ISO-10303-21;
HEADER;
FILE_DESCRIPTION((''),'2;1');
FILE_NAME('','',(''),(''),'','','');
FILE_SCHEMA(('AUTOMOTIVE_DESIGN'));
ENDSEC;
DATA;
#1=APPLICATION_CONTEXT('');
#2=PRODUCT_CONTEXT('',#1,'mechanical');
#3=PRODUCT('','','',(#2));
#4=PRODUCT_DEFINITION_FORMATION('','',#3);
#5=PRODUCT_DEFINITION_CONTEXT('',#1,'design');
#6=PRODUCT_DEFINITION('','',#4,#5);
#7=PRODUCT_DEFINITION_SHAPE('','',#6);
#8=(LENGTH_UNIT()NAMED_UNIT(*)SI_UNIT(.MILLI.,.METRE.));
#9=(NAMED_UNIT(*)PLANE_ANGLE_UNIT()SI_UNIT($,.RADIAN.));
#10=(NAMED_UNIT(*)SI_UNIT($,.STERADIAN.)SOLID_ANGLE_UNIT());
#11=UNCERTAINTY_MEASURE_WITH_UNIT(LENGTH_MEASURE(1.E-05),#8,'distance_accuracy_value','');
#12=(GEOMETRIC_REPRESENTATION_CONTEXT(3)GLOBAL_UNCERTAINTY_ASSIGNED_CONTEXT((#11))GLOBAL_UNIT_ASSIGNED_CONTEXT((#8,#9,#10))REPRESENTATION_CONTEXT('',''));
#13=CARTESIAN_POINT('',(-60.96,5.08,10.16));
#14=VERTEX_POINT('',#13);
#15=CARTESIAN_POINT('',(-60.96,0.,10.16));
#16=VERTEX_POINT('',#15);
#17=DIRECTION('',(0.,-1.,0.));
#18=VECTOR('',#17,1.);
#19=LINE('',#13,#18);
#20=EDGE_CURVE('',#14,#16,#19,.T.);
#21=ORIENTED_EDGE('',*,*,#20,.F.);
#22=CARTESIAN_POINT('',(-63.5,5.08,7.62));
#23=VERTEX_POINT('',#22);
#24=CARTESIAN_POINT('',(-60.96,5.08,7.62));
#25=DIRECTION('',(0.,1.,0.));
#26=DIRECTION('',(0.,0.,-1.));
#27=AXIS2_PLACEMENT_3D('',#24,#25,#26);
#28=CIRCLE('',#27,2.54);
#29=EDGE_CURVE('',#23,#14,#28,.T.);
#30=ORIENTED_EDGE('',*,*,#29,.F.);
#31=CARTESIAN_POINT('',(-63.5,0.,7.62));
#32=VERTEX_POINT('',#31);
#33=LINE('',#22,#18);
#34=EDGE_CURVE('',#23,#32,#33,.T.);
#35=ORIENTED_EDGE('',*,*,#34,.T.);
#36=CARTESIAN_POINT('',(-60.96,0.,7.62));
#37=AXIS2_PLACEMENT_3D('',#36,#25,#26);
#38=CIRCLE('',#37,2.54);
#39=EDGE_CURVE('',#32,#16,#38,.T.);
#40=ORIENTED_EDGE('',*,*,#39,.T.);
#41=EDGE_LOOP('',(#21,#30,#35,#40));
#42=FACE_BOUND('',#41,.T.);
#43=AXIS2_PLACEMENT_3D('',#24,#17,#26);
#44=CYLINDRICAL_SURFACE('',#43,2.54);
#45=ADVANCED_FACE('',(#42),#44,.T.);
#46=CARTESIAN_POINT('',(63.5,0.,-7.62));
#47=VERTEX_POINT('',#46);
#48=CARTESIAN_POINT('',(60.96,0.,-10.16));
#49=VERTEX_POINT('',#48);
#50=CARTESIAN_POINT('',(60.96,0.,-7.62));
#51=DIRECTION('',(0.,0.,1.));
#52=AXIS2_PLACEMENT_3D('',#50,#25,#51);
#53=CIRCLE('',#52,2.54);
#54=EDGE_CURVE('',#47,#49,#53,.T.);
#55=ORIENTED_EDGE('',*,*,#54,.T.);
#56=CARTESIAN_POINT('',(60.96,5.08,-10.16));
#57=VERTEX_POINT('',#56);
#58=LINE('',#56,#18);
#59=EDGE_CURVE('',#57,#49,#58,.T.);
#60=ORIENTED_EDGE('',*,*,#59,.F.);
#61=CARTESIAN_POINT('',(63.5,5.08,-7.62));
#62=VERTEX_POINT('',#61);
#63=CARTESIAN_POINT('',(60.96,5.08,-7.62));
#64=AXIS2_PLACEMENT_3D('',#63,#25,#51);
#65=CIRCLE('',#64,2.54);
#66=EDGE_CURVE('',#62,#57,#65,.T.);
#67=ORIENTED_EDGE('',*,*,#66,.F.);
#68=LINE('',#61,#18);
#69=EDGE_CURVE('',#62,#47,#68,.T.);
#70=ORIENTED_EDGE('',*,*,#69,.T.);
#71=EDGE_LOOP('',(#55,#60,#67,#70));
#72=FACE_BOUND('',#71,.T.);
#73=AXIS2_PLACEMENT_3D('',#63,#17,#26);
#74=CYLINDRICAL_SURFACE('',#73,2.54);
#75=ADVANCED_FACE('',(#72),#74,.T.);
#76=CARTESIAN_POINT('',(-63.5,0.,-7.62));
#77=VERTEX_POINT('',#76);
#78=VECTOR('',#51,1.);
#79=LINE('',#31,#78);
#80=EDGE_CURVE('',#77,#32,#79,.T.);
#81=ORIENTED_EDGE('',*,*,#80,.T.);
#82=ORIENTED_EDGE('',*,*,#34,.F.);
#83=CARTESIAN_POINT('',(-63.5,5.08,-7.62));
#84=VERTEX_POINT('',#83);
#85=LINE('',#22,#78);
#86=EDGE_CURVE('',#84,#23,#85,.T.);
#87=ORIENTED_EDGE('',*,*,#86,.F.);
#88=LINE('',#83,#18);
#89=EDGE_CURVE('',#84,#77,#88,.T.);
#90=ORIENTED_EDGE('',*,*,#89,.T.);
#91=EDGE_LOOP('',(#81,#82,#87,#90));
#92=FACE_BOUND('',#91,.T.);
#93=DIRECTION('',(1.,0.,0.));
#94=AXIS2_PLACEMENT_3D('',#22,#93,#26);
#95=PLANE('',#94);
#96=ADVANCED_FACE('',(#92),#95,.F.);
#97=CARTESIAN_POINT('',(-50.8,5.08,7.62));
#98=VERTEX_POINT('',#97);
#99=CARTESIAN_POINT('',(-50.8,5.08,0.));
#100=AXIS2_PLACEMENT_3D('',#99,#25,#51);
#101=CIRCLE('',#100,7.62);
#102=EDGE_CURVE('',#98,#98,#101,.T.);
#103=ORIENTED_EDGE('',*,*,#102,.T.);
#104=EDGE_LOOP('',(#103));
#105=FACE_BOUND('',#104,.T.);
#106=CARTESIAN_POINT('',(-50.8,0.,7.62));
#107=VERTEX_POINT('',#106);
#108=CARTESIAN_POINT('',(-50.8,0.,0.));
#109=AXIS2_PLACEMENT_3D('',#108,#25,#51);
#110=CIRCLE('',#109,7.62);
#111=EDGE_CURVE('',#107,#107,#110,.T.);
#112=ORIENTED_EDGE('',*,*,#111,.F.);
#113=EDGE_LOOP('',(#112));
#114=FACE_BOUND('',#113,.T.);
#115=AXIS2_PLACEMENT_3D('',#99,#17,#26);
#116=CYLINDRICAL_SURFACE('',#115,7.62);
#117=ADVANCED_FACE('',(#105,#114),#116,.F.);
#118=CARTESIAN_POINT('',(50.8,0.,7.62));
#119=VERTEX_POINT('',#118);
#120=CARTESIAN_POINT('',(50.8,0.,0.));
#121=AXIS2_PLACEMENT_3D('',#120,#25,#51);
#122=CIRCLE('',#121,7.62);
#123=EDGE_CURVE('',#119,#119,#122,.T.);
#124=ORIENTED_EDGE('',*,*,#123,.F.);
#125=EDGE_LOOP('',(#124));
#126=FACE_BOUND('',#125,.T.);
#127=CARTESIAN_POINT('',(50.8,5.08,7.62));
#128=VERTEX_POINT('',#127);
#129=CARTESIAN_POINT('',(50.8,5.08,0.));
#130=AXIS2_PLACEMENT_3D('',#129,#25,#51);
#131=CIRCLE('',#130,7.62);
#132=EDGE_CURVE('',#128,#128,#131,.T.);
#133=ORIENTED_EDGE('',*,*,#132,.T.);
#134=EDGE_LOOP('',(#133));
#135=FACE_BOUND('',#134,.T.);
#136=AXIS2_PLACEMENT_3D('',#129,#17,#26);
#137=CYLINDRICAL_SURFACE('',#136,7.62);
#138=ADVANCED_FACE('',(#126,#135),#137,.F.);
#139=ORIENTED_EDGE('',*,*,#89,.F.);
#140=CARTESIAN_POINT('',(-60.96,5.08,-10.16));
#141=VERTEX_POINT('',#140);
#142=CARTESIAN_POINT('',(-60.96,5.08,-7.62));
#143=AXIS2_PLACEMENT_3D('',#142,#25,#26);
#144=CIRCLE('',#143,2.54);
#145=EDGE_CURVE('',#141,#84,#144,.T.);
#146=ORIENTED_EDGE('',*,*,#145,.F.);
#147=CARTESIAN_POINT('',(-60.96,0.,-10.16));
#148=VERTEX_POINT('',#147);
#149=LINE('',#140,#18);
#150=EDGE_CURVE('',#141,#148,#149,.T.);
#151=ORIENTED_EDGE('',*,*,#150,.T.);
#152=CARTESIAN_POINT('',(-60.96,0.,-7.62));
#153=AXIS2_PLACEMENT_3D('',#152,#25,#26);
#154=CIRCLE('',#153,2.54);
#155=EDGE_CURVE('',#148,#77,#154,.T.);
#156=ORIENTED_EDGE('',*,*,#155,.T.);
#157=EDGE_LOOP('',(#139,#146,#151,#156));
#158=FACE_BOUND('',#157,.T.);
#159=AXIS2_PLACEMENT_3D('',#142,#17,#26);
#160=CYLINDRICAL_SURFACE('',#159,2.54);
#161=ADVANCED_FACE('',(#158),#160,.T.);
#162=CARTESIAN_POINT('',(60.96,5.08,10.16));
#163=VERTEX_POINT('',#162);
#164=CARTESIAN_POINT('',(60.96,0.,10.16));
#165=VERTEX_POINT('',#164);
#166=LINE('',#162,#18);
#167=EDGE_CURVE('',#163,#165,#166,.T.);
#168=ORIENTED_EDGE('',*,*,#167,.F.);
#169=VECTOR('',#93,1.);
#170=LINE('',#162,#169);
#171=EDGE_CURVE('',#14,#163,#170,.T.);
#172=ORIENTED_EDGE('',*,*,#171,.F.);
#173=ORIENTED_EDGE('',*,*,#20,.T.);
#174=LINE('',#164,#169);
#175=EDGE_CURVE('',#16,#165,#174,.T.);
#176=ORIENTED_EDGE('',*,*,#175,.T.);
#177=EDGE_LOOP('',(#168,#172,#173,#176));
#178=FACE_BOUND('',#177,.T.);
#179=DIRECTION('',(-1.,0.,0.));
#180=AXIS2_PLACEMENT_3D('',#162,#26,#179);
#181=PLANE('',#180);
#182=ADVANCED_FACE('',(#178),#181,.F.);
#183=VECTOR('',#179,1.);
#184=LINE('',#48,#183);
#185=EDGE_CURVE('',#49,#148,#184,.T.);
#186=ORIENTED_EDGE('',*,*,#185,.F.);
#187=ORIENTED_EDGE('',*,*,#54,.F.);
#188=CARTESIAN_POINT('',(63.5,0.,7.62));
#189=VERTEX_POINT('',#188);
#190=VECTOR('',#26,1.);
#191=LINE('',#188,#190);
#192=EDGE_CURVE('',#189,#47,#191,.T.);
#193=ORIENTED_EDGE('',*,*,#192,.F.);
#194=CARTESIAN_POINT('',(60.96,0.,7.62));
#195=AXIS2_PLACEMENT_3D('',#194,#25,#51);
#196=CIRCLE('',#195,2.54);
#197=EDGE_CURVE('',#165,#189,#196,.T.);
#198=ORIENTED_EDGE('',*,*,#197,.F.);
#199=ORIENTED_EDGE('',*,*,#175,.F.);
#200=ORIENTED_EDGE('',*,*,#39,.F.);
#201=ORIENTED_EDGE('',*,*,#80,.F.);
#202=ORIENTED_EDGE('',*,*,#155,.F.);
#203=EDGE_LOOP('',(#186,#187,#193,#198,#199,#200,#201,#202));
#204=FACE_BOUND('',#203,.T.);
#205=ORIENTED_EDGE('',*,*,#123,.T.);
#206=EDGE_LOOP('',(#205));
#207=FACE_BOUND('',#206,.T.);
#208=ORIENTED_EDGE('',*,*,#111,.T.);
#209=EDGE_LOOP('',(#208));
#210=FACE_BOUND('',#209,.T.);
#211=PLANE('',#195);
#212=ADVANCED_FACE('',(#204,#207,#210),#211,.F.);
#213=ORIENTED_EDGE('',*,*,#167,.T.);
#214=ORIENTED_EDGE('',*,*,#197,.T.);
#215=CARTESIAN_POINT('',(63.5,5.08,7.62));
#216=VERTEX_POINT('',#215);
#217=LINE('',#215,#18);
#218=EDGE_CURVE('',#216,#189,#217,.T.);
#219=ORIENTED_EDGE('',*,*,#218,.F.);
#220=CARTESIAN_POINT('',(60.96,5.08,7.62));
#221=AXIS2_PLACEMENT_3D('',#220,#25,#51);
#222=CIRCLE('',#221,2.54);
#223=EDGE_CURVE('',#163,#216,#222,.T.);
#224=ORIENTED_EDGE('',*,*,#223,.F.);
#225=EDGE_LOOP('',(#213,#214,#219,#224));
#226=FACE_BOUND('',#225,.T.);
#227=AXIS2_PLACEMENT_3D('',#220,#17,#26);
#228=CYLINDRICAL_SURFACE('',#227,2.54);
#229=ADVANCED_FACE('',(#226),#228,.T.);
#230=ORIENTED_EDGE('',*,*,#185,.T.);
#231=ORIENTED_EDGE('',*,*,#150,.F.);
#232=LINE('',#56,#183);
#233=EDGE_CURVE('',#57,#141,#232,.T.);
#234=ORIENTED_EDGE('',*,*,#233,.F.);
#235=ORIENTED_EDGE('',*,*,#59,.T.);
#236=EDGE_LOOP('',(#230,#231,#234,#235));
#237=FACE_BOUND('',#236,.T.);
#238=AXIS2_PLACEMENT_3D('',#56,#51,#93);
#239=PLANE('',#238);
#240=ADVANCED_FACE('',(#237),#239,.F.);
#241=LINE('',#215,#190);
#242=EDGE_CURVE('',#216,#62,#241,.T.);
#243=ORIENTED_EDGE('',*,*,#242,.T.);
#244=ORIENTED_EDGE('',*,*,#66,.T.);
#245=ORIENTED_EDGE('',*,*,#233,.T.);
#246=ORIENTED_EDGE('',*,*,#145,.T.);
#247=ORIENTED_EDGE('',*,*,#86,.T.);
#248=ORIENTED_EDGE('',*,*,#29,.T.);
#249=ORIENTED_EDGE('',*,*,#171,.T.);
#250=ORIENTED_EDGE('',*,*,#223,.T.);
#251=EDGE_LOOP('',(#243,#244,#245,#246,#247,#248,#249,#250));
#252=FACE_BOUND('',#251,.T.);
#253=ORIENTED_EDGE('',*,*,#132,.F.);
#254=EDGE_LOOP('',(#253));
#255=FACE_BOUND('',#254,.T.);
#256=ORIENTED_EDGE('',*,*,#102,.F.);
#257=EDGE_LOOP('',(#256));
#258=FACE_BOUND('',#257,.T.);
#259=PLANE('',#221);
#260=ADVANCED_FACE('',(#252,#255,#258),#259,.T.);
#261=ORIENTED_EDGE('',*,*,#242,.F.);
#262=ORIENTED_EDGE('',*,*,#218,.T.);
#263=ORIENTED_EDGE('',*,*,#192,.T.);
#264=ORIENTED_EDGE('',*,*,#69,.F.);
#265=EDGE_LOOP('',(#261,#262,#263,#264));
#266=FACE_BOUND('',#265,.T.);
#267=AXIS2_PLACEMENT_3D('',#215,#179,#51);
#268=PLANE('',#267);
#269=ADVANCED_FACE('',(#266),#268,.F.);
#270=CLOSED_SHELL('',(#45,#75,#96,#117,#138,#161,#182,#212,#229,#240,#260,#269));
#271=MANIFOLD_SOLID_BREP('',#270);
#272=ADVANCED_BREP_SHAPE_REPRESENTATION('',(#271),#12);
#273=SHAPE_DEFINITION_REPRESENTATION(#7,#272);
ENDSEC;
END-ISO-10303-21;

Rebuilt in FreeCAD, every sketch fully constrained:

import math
import FreeCAD as App
import Part
import Sketcher
Q = App.Units.Quantity

doc = App.newDocument("Part")
body = doc.addObject("PartDesign::Body", "Body")

# Sketch on XZ plane
sketch1 = body.newObject("Sketcher::SketchObject", "Sketch")
sketch1.AttachmentSupport = (doc.getObject("XZ_Plane"), [""])
sketch1.MapMode = "FlatFace"
sketch1.addGeometry([
    Part.LineSegment(App.Vector(-61, 10.2, 0), App.Vector(61, 10.2, 0)),  # 0
    Part.ArcOfCircle(Part.Circle(App.Vector(61, 7.6, 0), App.Vector(0, 0, 1), 2.5), math.radians(0), math.radians(90)),  # 1
    Part.LineSegment(App.Vector(63.5, 7.6, 0), App.Vector(63.5, -7.6, 0)),  # 2
    Part.ArcOfCircle(Part.Circle(App.Vector(61, -7.6, 0), App.Vector(0, 0, 1), 2.5), math.radians(-90), math.radians(0)),  # 3
    Part.LineSegment(App.Vector(61, -10.2, 0), App.Vector(-61, -10.2, 0)),  # 4
    Part.ArcOfCircle(Part.Circle(App.Vector(-61, -7.6, 0), App.Vector(0, 0, 1), 2.5), math.radians(-180), math.radians(-90)),  # 5
    Part.LineSegment(App.Vector(-63.5, -7.6, 0), App.Vector(-63.5, 7.6, 0)),  # 6
    Part.ArcOfCircle(Part.Circle(App.Vector(-61, 7.6, 0), App.Vector(0, 0, 1), 2.5), math.radians(90), math.radians(180)),  # 7
    Part.Circle(App.Vector(50.8, 0, 0), App.Vector(0, 0, 1), 7.6),  # 8
    Part.Circle(App.Vector(-50.8, 0, 0), App.Vector(0, 0, 1), 7.6),  # 9
], False)
sketch1.addConstraint([
    Sketcher.Constraint("Tangent", 0, 2, 1, 2),
    Sketcher.Constraint("Tangent", 1, 1, 2, 1),
    Sketcher.Constraint("Tangent", 2, 2, 3, 2),
    Sketcher.Constraint("Tangent", 3, 1, 4, 1),
    Sketcher.Constraint("Tangent", 4, 2, 5, 2),
    Sketcher.Constraint("Tangent", 5, 1, 6, 1),
    Sketcher.Constraint("Tangent", 6, 2, 7, 2),
    Sketcher.Constraint("Tangent", 7, 1, 0, 1),
    Sketcher.Constraint("Horizontal", 0),
    Sketcher.Constraint("Vertical", 2),
    Sketcher.Constraint("Horizontal", 4),
    Sketcher.Constraint("Vertical", 6),
    Sketcher.Constraint("Equal", 1, 3),
    Sketcher.Constraint("Equal", 3, 5),
    Sketcher.Constraint("Equal", 5, 7),
    Sketcher.Constraint("Equal", 8, 9),
    Sketcher.Constraint("Symmetric", 1, 3, 5, 3, -1, 1),
    Sketcher.Constraint("Symmetric", 8, 3, 9, 3, -1, 1),
    Sketcher.Constraint("PointOnObject", 8, 3, -1),
    Sketcher.Constraint("Diameter", 8, Q("0.6 in")),
    Sketcher.Constraint("Radius", 1, Q("0.1 in")),
    Sketcher.Constraint("DistanceX", 0, 1, 0, 2, Q("4.8 in")),
    Sketcher.Constraint("DistanceY", 2, 2, 2, 1, Q("0.6 in")),
    Sketcher.Constraint("DistanceX", -1, 1, 8, 3, Q("2 in")),
])
pad1 = body.newObject("PartDesign::Pad", "Pad")
pad1.Profile = sketch1
pad1.Length = Q("0.2 in")
pad1.Reversed = True

doc.recompute()
